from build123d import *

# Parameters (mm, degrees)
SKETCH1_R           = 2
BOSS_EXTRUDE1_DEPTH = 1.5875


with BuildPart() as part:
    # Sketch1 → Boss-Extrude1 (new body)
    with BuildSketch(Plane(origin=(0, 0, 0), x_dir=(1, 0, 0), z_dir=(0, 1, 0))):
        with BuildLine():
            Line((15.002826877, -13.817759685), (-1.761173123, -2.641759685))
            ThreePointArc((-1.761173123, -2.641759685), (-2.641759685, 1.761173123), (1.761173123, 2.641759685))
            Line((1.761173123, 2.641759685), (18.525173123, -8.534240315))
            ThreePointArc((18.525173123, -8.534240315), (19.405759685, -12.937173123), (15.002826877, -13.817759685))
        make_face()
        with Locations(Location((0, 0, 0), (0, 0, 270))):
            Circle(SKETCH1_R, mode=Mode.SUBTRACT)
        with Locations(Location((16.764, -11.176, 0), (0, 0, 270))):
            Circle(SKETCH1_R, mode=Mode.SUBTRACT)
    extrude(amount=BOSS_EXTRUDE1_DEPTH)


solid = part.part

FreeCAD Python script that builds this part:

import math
import FreeCAD as App
import Part
import Sketcher

V = App.Vector
Q = App.Units.Quantity

doc = App.newDocument("Part")
body = doc.addObject("PartDesign::Body", "Body")

# Sketch on XZ plane
sketch1 = doc.addObject("Sketcher::SketchObject", "Sketch")
body.addObject(sketch1)
sketch1.AttachmentSupport = (doc.XZ_Plane, [""])
sketch1.MapMode = "FlatFace"
sketch1.addGeometry([
    Part.LineSegment(V(-1.8, 2.6, 0), V(15, 13.8, 0)),  # 0
    Part.ArcOfCircle(Part.Circle(V(16.8, 11.2, 0), V(0, 0, 1), 3.2), math.radians(-56), math.radians(124)),  # 1
    Part.LineSegment(V(18.5, 8.5, 0), V(1.8, -2.6, 0)),  # 2
    Part.ArcOfCircle(Part.Circle(V(0, 0, 0), V(0, 0, 1), 3.2), math.radians(124), math.radians(304)),  # 3
    Part.Circle(V(16.8, 11.2, 0), V(0, 0, 1), 2),  # 4
    Part.Circle(V(0, 0, 0), V(0, 0, 1), 2),  # 5
], False)
sketch1.addConstraint([
    Sketcher.Constraint("Tangent", 0, 2, 1, 2),
    Sketcher.Constraint("Tangent", 1, 1, 2, 1),
    Sketcher.Constraint("Tangent", 2, 2, 3, 2),
    Sketcher.Constraint("Tangent", 3, 1, 0, 1),
    Sketcher.Constraint("Coincident", 3, 3, -1, 1),
    Sketcher.Constraint("Coincident", 5, 3, -1, 1),
    Sketcher.Constraint("Coincident", 4, 3, 1, 3),
    Sketcher.Constraint("Equal", 1, 3),
    Sketcher.Constraint("Equal", 4, 5),
    Sketcher.Constraint("Radius", 1, Q("0.125 in")),
    Sketcher.Constraint("Diameter", 4, 4.0),
    Sketcher.Constraint("DistanceX", -1, 1, 1, 3, Q("0.66 in")),
    Sketcher.Constraint("DistanceY", -1, 1, 1, 3, Q("0.44 in")),
])
pad1 = doc.addObject("PartDesign::Pad", "Pad")
body.addObject(pad1)
pad1.Profile = sketch1
pad1.Length = Q("0.0625 in")
pad1.Reversed = True

doc.recompute()
